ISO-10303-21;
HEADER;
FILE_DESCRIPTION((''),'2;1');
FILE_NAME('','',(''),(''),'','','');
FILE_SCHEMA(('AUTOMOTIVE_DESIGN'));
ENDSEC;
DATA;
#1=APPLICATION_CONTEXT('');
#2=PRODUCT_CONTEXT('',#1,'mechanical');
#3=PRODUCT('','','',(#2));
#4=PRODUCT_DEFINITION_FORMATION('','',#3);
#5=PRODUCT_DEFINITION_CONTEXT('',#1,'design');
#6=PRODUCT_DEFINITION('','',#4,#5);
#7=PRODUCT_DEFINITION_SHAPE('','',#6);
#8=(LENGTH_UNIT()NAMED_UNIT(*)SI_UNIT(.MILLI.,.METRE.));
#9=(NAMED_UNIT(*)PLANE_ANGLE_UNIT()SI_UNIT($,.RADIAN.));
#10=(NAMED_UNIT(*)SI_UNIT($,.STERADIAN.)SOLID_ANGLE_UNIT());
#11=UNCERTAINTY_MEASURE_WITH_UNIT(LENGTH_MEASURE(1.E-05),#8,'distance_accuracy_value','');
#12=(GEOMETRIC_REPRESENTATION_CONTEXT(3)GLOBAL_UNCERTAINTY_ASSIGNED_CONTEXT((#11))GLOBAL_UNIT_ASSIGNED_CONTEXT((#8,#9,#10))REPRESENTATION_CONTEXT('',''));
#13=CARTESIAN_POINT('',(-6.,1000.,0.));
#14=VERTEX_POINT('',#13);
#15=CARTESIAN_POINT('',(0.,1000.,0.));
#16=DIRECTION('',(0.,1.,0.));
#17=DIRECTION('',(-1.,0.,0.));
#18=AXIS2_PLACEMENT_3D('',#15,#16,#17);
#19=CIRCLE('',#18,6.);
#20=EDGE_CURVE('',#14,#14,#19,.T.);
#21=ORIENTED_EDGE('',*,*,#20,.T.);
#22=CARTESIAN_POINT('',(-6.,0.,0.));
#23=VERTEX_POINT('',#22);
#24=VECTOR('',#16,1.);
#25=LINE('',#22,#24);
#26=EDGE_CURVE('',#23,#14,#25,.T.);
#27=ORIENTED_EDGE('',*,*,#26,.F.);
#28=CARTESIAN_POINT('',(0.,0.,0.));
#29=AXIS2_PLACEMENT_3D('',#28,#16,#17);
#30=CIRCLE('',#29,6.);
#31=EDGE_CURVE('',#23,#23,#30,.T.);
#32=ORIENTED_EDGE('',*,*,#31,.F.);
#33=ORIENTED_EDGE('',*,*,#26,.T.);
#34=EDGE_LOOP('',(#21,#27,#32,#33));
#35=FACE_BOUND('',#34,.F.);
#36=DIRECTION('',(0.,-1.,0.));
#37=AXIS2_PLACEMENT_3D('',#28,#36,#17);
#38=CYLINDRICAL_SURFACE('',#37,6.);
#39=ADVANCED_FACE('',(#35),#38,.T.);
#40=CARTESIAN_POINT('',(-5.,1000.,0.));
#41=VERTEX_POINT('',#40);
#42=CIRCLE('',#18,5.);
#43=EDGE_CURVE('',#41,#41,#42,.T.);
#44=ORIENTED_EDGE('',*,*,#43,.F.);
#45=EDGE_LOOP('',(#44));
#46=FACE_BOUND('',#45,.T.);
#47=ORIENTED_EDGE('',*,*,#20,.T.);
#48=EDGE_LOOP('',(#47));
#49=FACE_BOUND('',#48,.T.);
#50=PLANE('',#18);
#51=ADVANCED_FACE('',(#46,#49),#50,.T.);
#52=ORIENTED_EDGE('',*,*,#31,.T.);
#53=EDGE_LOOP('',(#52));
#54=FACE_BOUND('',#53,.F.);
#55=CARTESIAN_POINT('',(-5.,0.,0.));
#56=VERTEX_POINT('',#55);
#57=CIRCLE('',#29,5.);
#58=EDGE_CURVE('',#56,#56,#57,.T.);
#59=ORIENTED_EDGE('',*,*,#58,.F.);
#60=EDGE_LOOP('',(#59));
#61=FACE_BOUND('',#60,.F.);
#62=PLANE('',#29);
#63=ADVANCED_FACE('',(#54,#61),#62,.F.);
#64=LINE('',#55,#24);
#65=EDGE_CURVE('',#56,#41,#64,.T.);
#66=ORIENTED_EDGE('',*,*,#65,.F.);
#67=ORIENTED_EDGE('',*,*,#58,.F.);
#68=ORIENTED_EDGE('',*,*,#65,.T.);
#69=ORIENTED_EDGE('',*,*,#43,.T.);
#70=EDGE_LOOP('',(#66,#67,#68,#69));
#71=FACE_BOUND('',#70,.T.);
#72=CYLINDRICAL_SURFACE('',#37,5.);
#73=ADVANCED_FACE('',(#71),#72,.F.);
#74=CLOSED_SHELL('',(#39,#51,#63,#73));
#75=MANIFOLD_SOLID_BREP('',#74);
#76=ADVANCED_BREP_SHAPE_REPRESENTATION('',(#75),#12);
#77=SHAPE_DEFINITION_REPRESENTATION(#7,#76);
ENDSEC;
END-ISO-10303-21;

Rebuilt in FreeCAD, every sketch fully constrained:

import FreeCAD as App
import Part
import Sketcher
from FreeCAD import Vector

doc = App.newDocument("Part")
body = doc.addObject("PartDesign::Body", "Body")

sketch1 = body.newObject("Sketcher::SketchObject", "Sketch")
sketch1.AttachmentSupport = (doc.getObject("XZ_Plane"), [""])
sketch1.MapMode = "FlatFace"
sketch1.addGeometry([
    Part.Circle(Vector(0, 0, 0), Vector(0, 0, 1), 6),
    Part.Circle(Vector(0, 0, 0), Vector(0, 0, 1), 5),
], False)
sketch1.addConstraint([
    Sketcher.Constraint("Coincident", 0, 3, -1, 1),
    Sketcher.Constraint("Coincident", 1, 3, -1, 1),
    Sketcher.Constraint("Diameter", 0, 12.0),
    Sketcher.Constraint("Diameter", 1, 10.0),
])
pad1 = body.newObject("PartDesign::Pad", "Pad")
pad1.Profile = sketch1
pad1.Length = 1000
pad1.Reversed = True

doc.recompute()
